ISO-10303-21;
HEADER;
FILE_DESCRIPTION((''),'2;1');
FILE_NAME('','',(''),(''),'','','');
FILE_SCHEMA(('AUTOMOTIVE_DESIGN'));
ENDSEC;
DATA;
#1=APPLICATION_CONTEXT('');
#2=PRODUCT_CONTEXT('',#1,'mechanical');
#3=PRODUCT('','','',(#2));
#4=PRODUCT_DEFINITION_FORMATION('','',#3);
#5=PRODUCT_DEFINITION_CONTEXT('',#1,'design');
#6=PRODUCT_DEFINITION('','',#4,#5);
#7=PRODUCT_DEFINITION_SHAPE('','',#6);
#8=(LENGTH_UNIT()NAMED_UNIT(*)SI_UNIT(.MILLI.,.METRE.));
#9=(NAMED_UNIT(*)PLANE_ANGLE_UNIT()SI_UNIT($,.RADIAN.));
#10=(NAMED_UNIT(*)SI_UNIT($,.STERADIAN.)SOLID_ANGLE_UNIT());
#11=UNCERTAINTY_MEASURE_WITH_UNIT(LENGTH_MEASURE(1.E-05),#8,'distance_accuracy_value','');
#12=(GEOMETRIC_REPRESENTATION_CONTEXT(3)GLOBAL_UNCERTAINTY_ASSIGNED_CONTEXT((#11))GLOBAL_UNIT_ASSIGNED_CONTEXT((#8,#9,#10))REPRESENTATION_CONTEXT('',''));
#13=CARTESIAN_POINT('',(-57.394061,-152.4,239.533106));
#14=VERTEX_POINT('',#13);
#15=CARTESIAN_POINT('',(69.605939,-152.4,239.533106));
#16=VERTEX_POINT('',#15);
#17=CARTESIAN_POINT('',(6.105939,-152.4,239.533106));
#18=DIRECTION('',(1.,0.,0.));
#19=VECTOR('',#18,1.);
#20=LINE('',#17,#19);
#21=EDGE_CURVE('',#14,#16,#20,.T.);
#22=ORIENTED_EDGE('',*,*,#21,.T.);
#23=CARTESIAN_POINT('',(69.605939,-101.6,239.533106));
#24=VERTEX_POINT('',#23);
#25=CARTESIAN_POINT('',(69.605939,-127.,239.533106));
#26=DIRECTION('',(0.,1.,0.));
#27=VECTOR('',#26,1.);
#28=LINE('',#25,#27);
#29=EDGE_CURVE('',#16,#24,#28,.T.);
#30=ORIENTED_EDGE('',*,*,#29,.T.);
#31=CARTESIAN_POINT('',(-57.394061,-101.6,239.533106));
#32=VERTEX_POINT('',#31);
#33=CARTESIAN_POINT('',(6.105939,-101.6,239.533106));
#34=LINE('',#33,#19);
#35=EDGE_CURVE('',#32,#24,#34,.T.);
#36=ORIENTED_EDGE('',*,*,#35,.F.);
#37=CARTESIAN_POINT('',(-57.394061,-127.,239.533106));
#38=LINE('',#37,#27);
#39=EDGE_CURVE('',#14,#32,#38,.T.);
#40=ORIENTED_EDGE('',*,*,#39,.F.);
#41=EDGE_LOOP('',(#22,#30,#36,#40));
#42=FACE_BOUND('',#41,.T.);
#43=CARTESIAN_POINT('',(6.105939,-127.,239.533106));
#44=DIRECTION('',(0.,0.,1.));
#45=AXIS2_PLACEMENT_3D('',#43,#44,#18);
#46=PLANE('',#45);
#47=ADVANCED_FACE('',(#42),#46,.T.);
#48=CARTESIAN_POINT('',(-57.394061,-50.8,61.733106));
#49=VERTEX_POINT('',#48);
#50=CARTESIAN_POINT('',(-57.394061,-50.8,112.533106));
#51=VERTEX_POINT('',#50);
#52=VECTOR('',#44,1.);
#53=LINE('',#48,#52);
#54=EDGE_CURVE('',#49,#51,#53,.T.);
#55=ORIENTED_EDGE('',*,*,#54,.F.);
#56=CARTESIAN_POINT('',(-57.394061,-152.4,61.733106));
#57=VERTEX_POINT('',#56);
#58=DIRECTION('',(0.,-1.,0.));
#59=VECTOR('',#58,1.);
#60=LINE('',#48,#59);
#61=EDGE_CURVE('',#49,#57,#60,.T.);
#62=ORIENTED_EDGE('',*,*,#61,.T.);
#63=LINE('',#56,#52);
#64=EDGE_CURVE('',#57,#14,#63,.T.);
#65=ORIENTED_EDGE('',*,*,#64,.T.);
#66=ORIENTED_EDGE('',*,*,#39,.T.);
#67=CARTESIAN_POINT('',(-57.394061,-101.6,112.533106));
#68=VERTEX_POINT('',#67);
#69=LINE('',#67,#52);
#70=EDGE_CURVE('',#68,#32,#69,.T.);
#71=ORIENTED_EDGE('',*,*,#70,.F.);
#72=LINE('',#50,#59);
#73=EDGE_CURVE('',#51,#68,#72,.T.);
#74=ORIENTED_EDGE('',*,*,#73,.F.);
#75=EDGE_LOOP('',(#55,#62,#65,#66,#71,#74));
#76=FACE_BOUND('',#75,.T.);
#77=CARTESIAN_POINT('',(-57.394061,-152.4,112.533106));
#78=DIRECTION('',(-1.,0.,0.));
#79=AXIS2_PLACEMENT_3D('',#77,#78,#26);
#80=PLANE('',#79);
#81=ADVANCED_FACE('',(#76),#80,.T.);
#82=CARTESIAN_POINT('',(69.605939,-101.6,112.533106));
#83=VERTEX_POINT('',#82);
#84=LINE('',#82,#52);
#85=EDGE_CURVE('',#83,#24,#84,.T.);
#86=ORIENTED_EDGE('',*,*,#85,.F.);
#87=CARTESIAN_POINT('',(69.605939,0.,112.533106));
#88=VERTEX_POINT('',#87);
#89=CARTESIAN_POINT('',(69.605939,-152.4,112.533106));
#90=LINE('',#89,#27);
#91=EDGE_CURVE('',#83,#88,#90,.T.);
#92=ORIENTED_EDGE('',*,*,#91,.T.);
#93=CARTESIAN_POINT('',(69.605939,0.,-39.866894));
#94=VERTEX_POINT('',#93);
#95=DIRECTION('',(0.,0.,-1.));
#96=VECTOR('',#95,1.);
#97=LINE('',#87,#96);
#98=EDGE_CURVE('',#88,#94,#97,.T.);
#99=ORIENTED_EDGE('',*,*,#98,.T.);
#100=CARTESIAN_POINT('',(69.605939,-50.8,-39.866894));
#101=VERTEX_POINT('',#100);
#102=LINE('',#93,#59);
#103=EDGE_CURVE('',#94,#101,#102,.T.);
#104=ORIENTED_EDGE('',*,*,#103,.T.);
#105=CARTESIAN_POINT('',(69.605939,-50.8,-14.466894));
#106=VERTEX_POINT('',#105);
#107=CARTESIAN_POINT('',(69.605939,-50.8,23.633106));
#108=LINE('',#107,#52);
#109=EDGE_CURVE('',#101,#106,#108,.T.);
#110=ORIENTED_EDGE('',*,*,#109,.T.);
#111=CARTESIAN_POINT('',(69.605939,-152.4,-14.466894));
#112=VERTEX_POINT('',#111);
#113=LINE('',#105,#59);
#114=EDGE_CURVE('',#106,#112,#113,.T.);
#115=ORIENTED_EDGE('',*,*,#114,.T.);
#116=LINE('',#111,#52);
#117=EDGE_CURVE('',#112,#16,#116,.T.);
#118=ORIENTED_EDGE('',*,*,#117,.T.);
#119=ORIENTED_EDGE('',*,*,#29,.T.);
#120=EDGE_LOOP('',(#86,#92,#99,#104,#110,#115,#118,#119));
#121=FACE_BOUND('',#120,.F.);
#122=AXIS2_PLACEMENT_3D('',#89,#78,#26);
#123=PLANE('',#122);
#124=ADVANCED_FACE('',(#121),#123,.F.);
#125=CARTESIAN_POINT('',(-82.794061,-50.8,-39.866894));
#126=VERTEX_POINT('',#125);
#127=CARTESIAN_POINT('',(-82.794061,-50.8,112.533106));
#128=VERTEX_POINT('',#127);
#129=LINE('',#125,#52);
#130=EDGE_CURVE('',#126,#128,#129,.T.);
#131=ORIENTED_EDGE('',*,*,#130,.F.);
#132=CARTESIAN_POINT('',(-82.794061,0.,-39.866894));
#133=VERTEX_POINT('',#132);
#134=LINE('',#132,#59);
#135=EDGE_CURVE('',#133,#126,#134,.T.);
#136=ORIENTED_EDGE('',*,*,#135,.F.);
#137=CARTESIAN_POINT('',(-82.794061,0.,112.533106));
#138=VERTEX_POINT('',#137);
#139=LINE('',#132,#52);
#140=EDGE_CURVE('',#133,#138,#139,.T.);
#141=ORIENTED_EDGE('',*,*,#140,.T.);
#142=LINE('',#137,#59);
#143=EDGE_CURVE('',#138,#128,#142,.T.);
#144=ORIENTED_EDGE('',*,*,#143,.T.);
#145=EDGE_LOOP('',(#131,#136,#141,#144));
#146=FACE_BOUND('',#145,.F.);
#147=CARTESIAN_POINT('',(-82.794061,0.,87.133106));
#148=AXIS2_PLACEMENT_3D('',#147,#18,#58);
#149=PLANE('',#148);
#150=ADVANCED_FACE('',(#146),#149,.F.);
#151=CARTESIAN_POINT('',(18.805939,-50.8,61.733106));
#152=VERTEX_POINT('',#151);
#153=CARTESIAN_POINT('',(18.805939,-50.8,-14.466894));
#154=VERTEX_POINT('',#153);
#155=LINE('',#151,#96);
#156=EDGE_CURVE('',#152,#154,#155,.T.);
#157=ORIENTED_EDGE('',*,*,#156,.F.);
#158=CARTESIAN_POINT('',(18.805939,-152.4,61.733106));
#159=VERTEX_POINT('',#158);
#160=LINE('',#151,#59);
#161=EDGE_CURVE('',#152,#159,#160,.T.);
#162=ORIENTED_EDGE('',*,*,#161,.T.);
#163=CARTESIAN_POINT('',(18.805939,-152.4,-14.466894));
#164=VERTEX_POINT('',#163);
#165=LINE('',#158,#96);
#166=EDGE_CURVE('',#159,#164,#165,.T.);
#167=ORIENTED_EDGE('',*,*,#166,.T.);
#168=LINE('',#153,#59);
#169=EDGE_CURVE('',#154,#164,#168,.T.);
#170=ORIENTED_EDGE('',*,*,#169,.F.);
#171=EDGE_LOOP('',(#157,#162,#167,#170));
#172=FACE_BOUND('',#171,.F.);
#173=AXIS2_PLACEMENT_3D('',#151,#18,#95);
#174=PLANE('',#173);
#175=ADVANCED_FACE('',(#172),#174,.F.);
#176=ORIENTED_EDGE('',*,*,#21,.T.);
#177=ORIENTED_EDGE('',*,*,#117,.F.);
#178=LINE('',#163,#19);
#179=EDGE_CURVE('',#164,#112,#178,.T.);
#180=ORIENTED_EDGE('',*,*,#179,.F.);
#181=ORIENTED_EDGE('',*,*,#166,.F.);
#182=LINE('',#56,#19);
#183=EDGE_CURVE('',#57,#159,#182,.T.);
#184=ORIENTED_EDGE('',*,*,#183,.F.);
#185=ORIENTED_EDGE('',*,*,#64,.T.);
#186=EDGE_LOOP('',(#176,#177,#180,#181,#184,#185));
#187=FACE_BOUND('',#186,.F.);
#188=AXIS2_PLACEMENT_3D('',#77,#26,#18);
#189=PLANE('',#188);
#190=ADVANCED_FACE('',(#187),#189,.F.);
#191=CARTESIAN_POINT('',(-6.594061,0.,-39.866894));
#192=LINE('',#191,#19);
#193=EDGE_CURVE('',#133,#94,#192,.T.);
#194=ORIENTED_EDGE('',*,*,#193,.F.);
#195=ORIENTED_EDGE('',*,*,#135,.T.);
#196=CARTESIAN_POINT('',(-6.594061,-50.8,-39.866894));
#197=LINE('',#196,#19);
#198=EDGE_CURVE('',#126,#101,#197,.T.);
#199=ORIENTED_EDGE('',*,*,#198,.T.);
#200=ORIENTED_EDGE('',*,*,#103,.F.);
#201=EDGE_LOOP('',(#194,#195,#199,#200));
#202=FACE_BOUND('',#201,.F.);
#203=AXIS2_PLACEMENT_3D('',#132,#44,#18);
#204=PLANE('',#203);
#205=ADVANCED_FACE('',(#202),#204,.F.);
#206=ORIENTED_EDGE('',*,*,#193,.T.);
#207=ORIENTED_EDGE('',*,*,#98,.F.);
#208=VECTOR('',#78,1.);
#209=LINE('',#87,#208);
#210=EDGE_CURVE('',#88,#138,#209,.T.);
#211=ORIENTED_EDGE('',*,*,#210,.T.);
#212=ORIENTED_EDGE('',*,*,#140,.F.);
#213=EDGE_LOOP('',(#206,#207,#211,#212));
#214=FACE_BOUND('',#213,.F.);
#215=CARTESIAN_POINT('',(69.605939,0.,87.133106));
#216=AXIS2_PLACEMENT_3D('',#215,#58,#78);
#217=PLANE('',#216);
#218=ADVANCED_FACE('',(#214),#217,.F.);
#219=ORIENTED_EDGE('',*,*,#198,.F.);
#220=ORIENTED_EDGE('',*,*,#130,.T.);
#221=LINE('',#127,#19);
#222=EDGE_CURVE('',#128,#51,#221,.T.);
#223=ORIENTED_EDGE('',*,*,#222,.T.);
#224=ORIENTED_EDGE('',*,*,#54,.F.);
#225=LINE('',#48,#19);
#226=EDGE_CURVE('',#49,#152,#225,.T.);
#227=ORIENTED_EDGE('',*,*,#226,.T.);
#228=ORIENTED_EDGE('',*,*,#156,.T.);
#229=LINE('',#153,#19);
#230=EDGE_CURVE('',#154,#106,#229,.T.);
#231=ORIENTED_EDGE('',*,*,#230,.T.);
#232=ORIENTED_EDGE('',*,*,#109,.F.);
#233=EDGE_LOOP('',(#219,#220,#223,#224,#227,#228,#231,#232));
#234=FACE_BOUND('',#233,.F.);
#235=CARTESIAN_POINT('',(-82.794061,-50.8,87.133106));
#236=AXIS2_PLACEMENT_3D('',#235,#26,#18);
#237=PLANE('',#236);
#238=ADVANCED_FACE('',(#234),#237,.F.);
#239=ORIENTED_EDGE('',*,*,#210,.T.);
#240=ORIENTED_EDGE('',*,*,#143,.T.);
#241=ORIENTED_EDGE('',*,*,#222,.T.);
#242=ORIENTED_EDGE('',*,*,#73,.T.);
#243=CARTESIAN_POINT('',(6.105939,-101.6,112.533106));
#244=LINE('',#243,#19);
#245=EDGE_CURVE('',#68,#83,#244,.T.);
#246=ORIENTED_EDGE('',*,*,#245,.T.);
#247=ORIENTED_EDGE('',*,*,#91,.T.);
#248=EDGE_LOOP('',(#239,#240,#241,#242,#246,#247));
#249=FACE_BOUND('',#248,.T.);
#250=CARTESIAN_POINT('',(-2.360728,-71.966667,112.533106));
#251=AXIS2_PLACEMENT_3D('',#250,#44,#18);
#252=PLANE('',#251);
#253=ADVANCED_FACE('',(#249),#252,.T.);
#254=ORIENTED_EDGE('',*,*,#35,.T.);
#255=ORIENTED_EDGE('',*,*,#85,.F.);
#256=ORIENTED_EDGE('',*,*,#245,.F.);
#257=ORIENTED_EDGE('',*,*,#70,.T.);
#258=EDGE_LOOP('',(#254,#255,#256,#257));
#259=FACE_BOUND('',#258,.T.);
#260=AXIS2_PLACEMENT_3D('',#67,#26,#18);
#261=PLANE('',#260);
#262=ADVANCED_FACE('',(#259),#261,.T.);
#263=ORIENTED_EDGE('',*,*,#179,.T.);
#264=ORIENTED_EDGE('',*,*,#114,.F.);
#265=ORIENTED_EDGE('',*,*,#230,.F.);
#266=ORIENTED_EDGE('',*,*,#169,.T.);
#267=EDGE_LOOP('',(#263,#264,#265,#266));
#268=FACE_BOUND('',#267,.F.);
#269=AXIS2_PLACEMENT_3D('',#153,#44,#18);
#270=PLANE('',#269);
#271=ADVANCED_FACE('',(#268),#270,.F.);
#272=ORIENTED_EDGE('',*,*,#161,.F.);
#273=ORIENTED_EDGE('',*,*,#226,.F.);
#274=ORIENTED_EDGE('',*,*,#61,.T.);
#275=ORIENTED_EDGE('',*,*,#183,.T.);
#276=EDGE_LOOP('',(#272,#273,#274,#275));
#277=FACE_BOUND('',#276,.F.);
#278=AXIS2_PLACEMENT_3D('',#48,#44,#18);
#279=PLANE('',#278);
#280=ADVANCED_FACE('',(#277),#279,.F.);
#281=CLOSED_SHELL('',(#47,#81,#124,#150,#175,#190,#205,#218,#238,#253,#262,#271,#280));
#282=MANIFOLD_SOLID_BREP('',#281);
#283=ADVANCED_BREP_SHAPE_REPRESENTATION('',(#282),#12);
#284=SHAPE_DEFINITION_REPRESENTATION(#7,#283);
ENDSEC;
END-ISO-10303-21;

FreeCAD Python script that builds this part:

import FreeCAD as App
import Part
import Sketcher
from FreeCAD import Vector
Q = App.Units.Quantity

doc = App.newDocument("Part")
params = doc.addObject("Spreadsheet::Sheet", "Params")
for row, (alias, value) in enumerate([
    ("sketch1_width", "6 in"),
    ("sketch1_height", "5 in"),
    ("pad1_length", "2 in"),
    ("sketch2_width", "2 in"),
    ("sketch2_width2", "5 in"),
    ("sketch2_height", "4 in"),
    ("pad2_length", "4 in"),
    ("sketch3_width", "6 in"),
    ("sketch3_width2", "1 in"),
    ("sketch3_height", "2 in"),
    ("pad3_length", "1 in"),
    ("sketch4_width", "5 in"),
    ("sketch4_height", "2 in"),
    ("pad4_length", "5 in"),
], start=1):
    params.set(f"A{row}", alias)
    params.set(f"B{row}", "=" + value)
    params.setAlias(f"B{row}", alias)

body = doc.addObject("PartDesign::Body", "Body")

# Sketch on XZ plane
sketch1 = body.newObject("Sketcher::SketchObject", "Sketch")
sketch1.AttachmentSupport = (doc.getObject("XZ_Plane"), [""])
sketch1.MapMode = "FlatFace"
sketch1.addGeometry([
    Part.LineSegment(Vector(-82.794061, 87.133106, 0), Vector(-82.794061, -39.866894, 0)),
    Part.LineSegment(Vector(-82.794061, -39.866894, 0), Vector(69.605939, -39.866894, 0)),
    Part.LineSegment(Vector(69.605939, -39.866894, 0), Vector(69.605939, 87.133106, 0)),
    Part.LineSegment(Vector(69.605939, 87.133106, 0), Vector(-82.794061, 87.133106, 0)),
], False)
sketch1.addConstraint([
    Sketcher.Constraint("Coincident", 0, 2, 1, 1),
    Sketcher.Constraint("Coincident", 1, 2, 2, 1),
    Sketcher.Constraint("Coincident", 2, 2, 3, 1),
    Sketcher.Constraint("Coincident", 3, 2, 0, 1),
    Sketcher.Constraint("Vertical", 0),
    Sketcher.Constraint("Horizontal", 1),
    Sketcher.Constraint("Vertical", 2),
    Sketcher.Constraint("Horizontal", 3),
    Sketcher.Constraint("DistanceX", 1, 1, 1, 2, Q("6 in")),
    Sketcher.Constraint("DistanceY", 0, 2, 0, 1, Q("5 in")),
    Sketcher.Constraint("DistanceX", 0, 2, -1, 1, 82.794061),
    Sketcher.Constraint("DistanceY", 0, 2, -1, 1, 39.866894),
])
sketch1.setExpression("Constraints[8]", "Params.sketch1_width")
sketch1.setExpression("Constraints[9]", "Params.sketch1_height")
pad1 = body.newObject("PartDesign::Pad", "Pad")
pad1.Profile = sketch1
pad1.setExpression("Length", "Params.pad1_length")

# Sketch on XZ plane
sketch2 = body.newObject("Sketcher::SketchObject", "Sketch001")
sketch2.AttachmentSupport = (doc.getObject("XZ_Plane"), [""])
sketch2.MapMode = "FlatFace"
sketch2.AttachmentOffset = App.Placement(Vector(0, 0, 2 * 25.4), App.Rotation())
sketch2.addGeometry([
    Part.LineSegment(Vector(18.805939, -14.466894, 0), Vector(69.605939, -14.466894, 0)),  # 0
    Part.LineSegment(Vector(69.605939, -14.466894, 0), Vector(69.605939, 87.133106, 0)),  # 1
    Part.LineSegment(Vector(69.605939, 87.133106, 0), Vector(-57.394061, 87.133106, 0)),  # 2
    Part.LineSegment(Vector(-57.394061, 87.133106, 0), Vector(-57.394061, 61.733106, 0)),  # 3
    Part.LineSegment(Vector(-57.394061, 61.733106, 0), Vector(18.805939, 61.733106, 0)),  # 4
    Part.LineSegment(Vector(18.805939, 61.733106, 0), Vector(18.805939, -14.466894, 0)),  # 5
], False)
sketch2.addConstraint([
    Sketcher.Constraint("Coincident", 0, 2, 1, 1),
    Sketcher.Constraint("Coincident", 1, 2, 2, 1),
    Sketcher.Constraint("Coincident", 2, 2, 3, 1),
    Sketcher.Constraint("Coincident", 3, 2, 4, 1),
    Sketcher.Constraint("Coincident", 4, 2, 5, 1),
    Sketcher.Constraint("Coincident", 5, 2, 0, 1),
    Sketcher.Constraint("Horizontal", 0),
    Sketcher.Constraint("Vertical", 1),
    Sketcher.Constraint("Horizontal", 2),
    Sketcher.Constraint("Vertical", 3),
    Sketcher.Constraint("Horizontal", 4),
    Sketcher.Constraint("Vertical", 5),
    Sketcher.Constraint("Equal", 4, 5),
    Sketcher.Constraint("DistanceX", 0, 1, 0, 2, Q("2 in")),
    Sketcher.Constraint("DistanceX", 2, 2, 2, 1, Q("5 in")),
    Sketcher.Constraint("DistanceY", 1, 1, 1, 2, Q("4 in")),
    Sketcher.Constraint("DistanceX", -1, 1, 0, 2, 69.605939),
    Sketcher.Constraint("DistanceY", 0, 2, -1, 1, 14.466894),
])
sketch2.setExpression("Constraints[13]", "Params.sketch2_width")
sketch2.setExpression("Constraints[14]", "Params.sketch2_width2")
sketch2.setExpression("Constraints[15]", "Params.sketch2_height")
pad2 = body.newObject("PartDesign::Pad", "Pad001")
pad2.Profile = sketch2
pad2.setExpression("Length", "Params.pad2_length")

# Sketch on XY plane
sketch3 = body.newObject("Sketcher::SketchObject", "Sketch002")
sketch3.AttachmentSupport = (doc.getObject("XY_Plane"), [""])
sketch3.MapMode = "FlatFace"
sketch3.AttachmentOffset = App.Placement(Vector(0, 0, 87.133106), App.Rotation())
sketch3.addGeometry([
    Part.LineSegment(Vector(69.605939, 0, 0), Vector(-82.794061, 0, 0)),  # 0
    Part.LineSegment(Vector(-82.794061, 0, 0), Vector(-82.794061, -50.8, 0)),  # 1
    Part.LineSegment(Vector(-82.794061, -50.8, 0), Vector(-57.394061, -50.8, 0)),  # 2
    Part.LineSegment(Vector(-57.394061, -50.8, 0), Vector(-57.394061, -152.4, 0)),  # 3
    Part.LineSegment(Vector(-57.394061, -152.4, 0), Vector(69.605939, -152.4, 0)),  # 4
    Part.LineSegment(Vector(69.605939, -152.4, 0), Vector(69.605939, 0, 0)),  # 5
], False)
sketch3.addConstraint([
    Sketcher.Constraint("Coincident", 0, 2, 1, 1),
    Sketcher.Constraint("Coincident", 1, 2, 2, 1),
    Sketcher.Constraint("Coincident", 2, 2, 3, 1),
    Sketcher.Constraint("Coincident", 3, 2, 4, 1),
    Sketcher.Constraint("Coincident", 4, 2, 5, 1),
    Sketcher.Constraint("Coincident", 5, 2, 0, 1),
    Sketcher.Constraint("Horizontal", 0),
    Sketcher.Constraint("Vertical", 1),
    Sketcher.Constraint("Horizontal", 2),
    Sketcher.Constraint("Vertical", 3),
    Sketcher.Constraint("Horizontal", 4),
    Sketcher.Constraint("Vertical", 5),
    Sketcher.Constraint("PointOnObject", 0, 2, -1),
    Sketcher.Constraint("Equal", 0, 5),
    Sketcher.Constraint("DistanceX", 0, 2, 0, 1, Q("6 in")),
    Sketcher.Constraint("DistanceX", 2, 1, 2, 2, Q("1 in")),
    Sketcher.Constraint("DistanceY", 1, 2, 1, 1, Q("2 in")),
    Sketcher.Constraint("DistanceX", 0, 2, -1, 1, 82.794061),
])
sketch3.setExpression("Constraints[14]", "Params.sketch3_width")
sketch3.setExpression("Constraints[15]", "Params.sketch3_width2")
sketch3.setExpression("Constraints[16]", "Params.sketch3_height")
pad3 = body.newObject("PartDesign::Pad", "Pad002")
pad3.Profile = sketch3
pad3.setExpression("Length", "Params.pad3_length")

# Sketch on XY plane
sketch4 = body.newObject("Sketcher::SketchObject", "Sketch003")
sketch4.AttachmentSupport = (doc.getObject("XY_Plane"), [""])
sketch4.MapMode = "FlatFace"
sketch4.AttachmentOffset = App.Placement(Vector(0, 0, 112.533106), App.Rotation())
sketch4.addGeometry([
    Part.LineSegment(Vector(-57.394061, -101.6, 0), Vector(-57.394061, -152.4, 0)),
    Part.LineSegment(Vector(-57.394061, -152.4, 0), Vector(69.605939, -152.4, 0)),
    Part.LineSegment(Vector(69.605939, -152.4, 0), Vector(69.605939, -101.6, 0)),
    Part.LineSegment(Vector(69.605939, -101.6, 0), Vector(-57.394061, -101.6, 0)),
], False)
sketch4.addConstraint([
    Sketcher.Constraint("Coincident", 0, 2, 1, 1),
    Sketcher.Constraint("Coincident", 1, 2, 2, 1),
    Sketcher.Constraint("Coincident", 2, 2, 3, 1),
    Sketcher.Constraint("Coincident", 3, 2, 0, 1),
    Sketcher.Constraint("Vertical", 0),
    Sketcher.Constraint("Horizontal", 1),
    Sketcher.Constraint("Vertical", 2),
    Sketcher.Constraint("Horizontal", 3),
    Sketcher.Constraint("DistanceX", 1, 1, 1, 2, Q("5 in")),
    Sketcher.Constraint("DistanceY", 0, 2, 0, 1, Q("2 in")),
    Sketcher.Constraint("DistanceY", 0, 2, -1, 1, Q("6 in")),
    Sketcher.Constraint("DistanceX", 0, 2, -1, 1, 57.394061),
])
sketch4.setExpression("Constraints[8]", "Params.sketch4_width")
sketch4.setExpression("Constraints[9]", "Params.sketch4_height")
pad4 = body.newObject("PartDesign::Pad", "Pad003")
pad4.Profile = sketch4
pad4.setExpression("Length", "Params.pad4_length")

doc.recompute()
